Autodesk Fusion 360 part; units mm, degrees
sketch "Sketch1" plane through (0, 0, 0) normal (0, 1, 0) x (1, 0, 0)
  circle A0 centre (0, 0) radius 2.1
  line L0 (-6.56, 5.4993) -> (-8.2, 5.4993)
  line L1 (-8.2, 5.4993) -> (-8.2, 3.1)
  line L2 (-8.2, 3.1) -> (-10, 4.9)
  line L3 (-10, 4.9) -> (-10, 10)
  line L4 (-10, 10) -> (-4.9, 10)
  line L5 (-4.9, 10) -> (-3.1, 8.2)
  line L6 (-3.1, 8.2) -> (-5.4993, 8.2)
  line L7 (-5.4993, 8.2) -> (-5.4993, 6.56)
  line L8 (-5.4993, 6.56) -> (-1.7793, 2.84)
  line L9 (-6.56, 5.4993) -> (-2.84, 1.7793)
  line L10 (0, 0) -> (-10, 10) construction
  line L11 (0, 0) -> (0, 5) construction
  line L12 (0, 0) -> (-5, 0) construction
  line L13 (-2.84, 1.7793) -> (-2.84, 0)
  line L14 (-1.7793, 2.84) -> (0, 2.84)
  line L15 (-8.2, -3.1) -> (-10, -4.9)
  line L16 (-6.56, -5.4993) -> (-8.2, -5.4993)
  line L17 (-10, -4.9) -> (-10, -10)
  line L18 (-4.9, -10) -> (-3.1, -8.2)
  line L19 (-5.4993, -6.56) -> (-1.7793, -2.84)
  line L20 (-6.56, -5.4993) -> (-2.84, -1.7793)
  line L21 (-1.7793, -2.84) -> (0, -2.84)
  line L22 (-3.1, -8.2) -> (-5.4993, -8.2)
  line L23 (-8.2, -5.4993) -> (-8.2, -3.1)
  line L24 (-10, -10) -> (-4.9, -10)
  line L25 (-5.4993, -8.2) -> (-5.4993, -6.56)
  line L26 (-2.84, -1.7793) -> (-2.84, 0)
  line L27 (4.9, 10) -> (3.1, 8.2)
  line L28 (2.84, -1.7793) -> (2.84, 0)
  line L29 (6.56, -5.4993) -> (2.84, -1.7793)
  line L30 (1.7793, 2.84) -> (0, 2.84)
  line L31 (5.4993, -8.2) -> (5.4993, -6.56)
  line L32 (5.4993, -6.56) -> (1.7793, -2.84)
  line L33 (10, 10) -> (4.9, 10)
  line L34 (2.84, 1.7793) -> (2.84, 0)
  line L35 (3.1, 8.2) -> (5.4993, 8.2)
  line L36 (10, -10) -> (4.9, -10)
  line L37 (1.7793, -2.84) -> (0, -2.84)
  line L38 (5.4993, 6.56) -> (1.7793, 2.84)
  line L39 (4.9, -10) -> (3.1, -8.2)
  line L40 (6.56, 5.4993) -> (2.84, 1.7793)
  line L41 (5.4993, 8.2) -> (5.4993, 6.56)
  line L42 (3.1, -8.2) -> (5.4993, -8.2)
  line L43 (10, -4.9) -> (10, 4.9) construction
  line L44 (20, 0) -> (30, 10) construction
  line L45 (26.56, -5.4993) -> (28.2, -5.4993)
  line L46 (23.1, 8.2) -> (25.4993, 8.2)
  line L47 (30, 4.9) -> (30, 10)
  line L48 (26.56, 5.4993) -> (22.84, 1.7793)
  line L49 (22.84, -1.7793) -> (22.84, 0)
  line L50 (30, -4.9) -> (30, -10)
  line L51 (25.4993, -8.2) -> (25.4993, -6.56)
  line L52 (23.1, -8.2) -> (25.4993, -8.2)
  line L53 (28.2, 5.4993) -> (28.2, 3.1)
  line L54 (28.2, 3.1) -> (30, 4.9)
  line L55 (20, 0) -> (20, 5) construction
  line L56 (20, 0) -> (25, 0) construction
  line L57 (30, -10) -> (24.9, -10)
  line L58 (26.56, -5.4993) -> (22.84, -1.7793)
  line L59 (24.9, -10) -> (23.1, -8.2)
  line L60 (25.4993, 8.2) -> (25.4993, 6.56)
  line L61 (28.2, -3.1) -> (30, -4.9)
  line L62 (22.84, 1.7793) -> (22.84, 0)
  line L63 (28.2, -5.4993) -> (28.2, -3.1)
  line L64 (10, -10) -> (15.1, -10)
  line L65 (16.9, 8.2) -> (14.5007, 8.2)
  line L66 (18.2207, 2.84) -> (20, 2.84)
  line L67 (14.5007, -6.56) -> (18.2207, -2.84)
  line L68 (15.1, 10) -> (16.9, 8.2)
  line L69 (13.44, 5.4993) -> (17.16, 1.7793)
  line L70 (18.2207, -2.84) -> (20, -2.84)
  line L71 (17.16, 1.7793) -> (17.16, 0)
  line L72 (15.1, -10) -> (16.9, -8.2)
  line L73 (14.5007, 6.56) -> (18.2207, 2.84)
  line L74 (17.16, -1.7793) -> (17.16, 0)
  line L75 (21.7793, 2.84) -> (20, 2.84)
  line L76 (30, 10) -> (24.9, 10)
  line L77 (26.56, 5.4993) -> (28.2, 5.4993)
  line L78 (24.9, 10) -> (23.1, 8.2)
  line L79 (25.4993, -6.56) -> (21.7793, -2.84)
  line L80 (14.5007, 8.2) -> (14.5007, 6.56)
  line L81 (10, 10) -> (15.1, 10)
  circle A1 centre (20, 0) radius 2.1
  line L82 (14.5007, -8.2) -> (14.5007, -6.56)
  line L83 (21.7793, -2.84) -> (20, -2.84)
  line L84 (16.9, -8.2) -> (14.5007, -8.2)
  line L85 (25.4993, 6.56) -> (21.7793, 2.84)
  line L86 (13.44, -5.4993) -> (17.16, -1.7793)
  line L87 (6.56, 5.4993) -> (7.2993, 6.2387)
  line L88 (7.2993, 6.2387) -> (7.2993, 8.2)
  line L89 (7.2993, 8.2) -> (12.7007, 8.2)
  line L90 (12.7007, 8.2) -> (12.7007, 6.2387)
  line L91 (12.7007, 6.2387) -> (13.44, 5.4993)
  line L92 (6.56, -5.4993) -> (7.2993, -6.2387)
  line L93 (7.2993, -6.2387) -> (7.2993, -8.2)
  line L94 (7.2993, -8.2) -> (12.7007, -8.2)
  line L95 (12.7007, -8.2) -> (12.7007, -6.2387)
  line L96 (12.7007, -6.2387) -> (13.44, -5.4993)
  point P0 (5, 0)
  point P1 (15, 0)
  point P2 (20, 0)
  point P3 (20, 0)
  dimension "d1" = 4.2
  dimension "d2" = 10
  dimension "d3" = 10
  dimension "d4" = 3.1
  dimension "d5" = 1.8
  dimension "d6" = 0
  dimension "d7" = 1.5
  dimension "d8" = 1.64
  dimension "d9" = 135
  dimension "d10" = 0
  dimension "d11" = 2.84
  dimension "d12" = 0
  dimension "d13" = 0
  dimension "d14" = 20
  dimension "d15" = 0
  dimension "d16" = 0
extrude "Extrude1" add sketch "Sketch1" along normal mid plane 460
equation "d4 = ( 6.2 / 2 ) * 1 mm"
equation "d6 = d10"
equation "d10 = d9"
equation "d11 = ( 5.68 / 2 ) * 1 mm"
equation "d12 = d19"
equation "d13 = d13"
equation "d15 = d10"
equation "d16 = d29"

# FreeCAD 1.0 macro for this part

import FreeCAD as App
import Part
import Sketcher

V = App.Vector


def add_polygon(sketch, points):
    """Adds a closed chain of lines whose ends are joined by coincident constraints."""
    first, n = sketch.GeometryCount, len(points)
    for a, b in zip(points, points[1:] + points[:1]):
        sketch.addGeometry(Part.LineSegment(App.Vector(*a, 0), App.Vector(*b, 0)), False)
    for i in range(n):
        sketch.addConstraint(Sketcher.Constraint("Coincident", first + i, 2, first + (i + 1) % n, 1))

doc = App.newDocument("Part")
body = doc.addObject("PartDesign::Body", "Body")

# Sketch on XZ plane
sketch1 = body.newObject("Sketcher::SketchObject", "Sketch")
sketch1.AttachmentSupport = (doc.getObject("XZ_Plane"), [""])
sketch1.MapMode = "FlatFace"
add_polygon(sketch1, [(-8.2, -5.5), (-6.6, -5.5), (-2.8, -1.8), (-2.8, 1.8), (-6.6, 5.5), (-8.2, 5.5), (-8.2, 3.1), (-10, 4.9), (-10, 10), (-4.9, 10), (-3.1, 8.2), (-5.5, 8.2), (-5.5, 6.6), (-1.8, 2.8), (1.8, 2.8), (5.5, 6.6), (5.5, 8.2), (3.1, 8.2), (4.9, 10), (15.1, 10), (16.9, 8.2), (14.5, 8.2), (14.5, 6.6), (18.2, 2.8), (21.8, 2.8), (25.5, 6.6), (25.5, 8.2), (23.1, 8.2), (24.9, 10), (30, 10), (30, 4.9), (28.2, 3.1), (28.2, 5.5), (26.6, 5.5), (22.8, 1.8), (22.8, -1.8), (26.6, -5.5), (28.2, -5.5), (28.2, -3.1), (30, -4.9), (30, -10), (24.9, -10), (23.1, -8.2), (25.5, -8.2), (25.5, -6.6), (21.8, -2.8), (18.2, -2.8), (14.5, -6.6), (14.5, -8.2), (16.9, -8.2), (15.1, -10), (4.9, -10), (3.1, -8.2), (5.5, -8.2), (5.5, -6.6), (1.8, -2.8), (-1.8, -2.8), (-5.5, -6.6), (-5.5, -8.2), (-3.1, -8.2), (-4.9, -10), (-10, -10), (-10, -4.9), (-8.2, -3.1)])  # lines 0-63
sketch1.addGeometry(Part.Circle(V(0, 0, 0), V(0, 0, 1), 2.1), False)  # 64
add_polygon(sketch1, [(6.6, 5.5), (2.8, 1.8), (2.8, -1.8), (6.6, -5.5), (7.3, -6.2), (7.3, -8.2), (12.7, -8.2), (12.7, -6.2), (13.4, -5.5), (17.2, -1.8), (17.2, 1.8), (13.4, 5.5), (12.7, 6.2), (12.7, 8.2), (7.3, 8.2), (7.3, 6.2)])  # lines 65-80
sketch1.addGeometry(Part.Circle(V(20, 0, 0), V(0, 0, 1), 2.1), False)  # 81
sketch1.addConstraint([
    Sketcher.Constraint("Horizontal", 0),
    Sketcher.Constraint("Vertical", 2),
    Sketcher.Constraint("Horizontal", 4),
    Sketcher.Constraint("Vertical", 5),
    Sketcher.Constraint("Vertical", 7),
    Sketcher.Constraint("Horizontal", 8),
    Sketcher.Constraint("Horizontal", 10),
    Sketcher.Constraint("Vertical", 11),
    Sketcher.Constraint("Horizontal", 13),
    Sketcher.Constraint("Vertical", 15),
    Sketcher.Constraint("Horizontal", 16),
    Sketcher.Constraint("Horizontal", 18),
    Sketcher.Constraint("Horizontal", 20),
    Sketcher.Constraint("Vertical", 21),
    Sketcher.Constraint("Horizontal", 23),
    Sketcher.Constraint("Vertical", 25),
    Sketcher.Constraint("Horizontal", 26),
    Sketcher.Constraint("Horizontal", 28),
    Sketcher.Constraint("Vertical", 29),
    Sketcher.Constraint("Vertical", 31),
    Sketcher.Constraint("Horizontal", 32),
    Sketcher.Constraint("Vertical", 34),
    Sketcher.Constraint("Horizontal", 36),
    Sketcher.Constraint("Vertical", 37),
    Sketcher.Constraint("Vertical", 39),
    Sketcher.Constraint("Horizontal", 40),
    Sketcher.Constraint("Horizontal", 42),
    Sketcher.Constraint("Vertical", 43),
    Sketcher.Constraint("Horizontal", 45),
    Sketcher.Constraint("Vertical", 47),
    Sketcher.Constraint("Horizontal", 48),
    Sketcher.Constraint("Horizontal", 50),
    Sketcher.Constraint("Horizontal", 52),
    Sketcher.Constraint("Vertical", 53),
    Sketcher.Constraint("Horizontal", 55),
    Sketcher.Constraint("Vertical", 57),
    Sketcher.Constraint("Horizontal", 58),
    Sketcher.Constraint("Horizontal", 60),
    Sketcher.Constraint("Vertical", 61),
    Sketcher.Constraint("Vertical", 63),
    Sketcher.Constraint("Vertical", 66),
    Sketcher.Constraint("Vertical", 69),
    Sketcher.Constraint("Horizontal", 70),
    Sketcher.Constraint("Vertical", 71),
    Sketcher.Constraint("Vertical", 74),
    Sketcher.Constraint("Vertical", 77),
    Sketcher.Constraint("Horizontal", 78),
    Sketcher.Constraint("Vertical", 79),
    Sketcher.Constraint("Coincident", 64, 3, -1, 1),
    Sketcher.Constraint("Equal", 64, 81),
    Sketcher.Constraint("Symmetric", 8, 2, 50, 2, -1, 1),
    Sketcher.Constraint("Symmetric", 9, 2, 51, 2, -1, 1),
    Sketcher.Constraint("Symmetric", 11, 2, 53, 2, -1, 1),
    Sketcher.Constraint("Symmetric", 12, 2, 54, 2, -1, 1),
    Sketcher.Constraint("Symmetric", 14, 2, 56, 2, -1, 1),
    Sketcher.Constraint("Symmetric", 16, 2, 58, 2, -1, 1),
    Sketcher.Constraint("Symmetric", 17, 2, 59, 2, -1, 1),
    Sketcher.Constraint("Symmetric", 1, 2, 65, 2, -1, 1),
    Sketcher.Constraint("Symmetric", 3, 2, 67, 2, -1, 1),
    Sketcher.Constraint("Symmetric", 0, 2, 80, 2, -1, 1),
    Sketcher.Constraint("Symmetric", 11, 2, 14, 2, -2),
    Sketcher.Constraint("Symmetric", 9, 2, 16, 2, -2),
    Sketcher.Constraint("Symmetric", 8, 2, 17, 2, -2),
    Sketcher.Constraint("Symmetric", 0, 2, 67, 2, -2),
    Sketcher.Constraint("Symmetric", 32, 2, 35, 2, -1),
    Sketcher.Constraint("Symmetric", 30, 2, 37, 2, -1),
    Sketcher.Constraint("Symmetric", 29, 2, 38, 2, -1),
    Sketcher.Constraint("Symmetric", 27, 2, 40, 2, -1),
    Sketcher.Constraint("Symmetric", 26, 2, 41, 2, -1),
    Sketcher.Constraint("Symmetric", 24, 2, 43, 2, -1),
    Sketcher.Constraint("Symmetric", 23, 2, 44, 2, -1),
    Sketcher.Constraint("Symmetric", 21, 2, 46, 2, -1),
    Sketcher.Constraint("Symmetric", 19, 2, 48, 2, -1),
    Sketcher.Constraint("Symmetric", 6, 2, 61, 2, -1),
    Sketcher.Constraint("Symmetric", 5, 2, 62, 2, -1),
    Sketcher.Constraint("Symmetric", 72, 2, 75, 2, -1),
    Sketcher.Constraint("Symmetric", 71, 2, 76, 2, -1),
    Sketcher.Constraint("Symmetric", 69, 2, 78, 2, -1),
    Sketcher.Constraint("PointOnObject", 81, 3, -1),
    Sketcher.Constraint("Perpendicular", 1, 3),
    Sketcher.Constraint("Parallel", 3, 6),
    Sketcher.Constraint("Parallel", 6, 9),
    Sketcher.Constraint("Parallel", 9, 12),
    Sketcher.Constraint("Perpendicular", 12, 14),
    Sketcher.Constraint("Parallel", 14, 17),
    Sketcher.Constraint("Perpendicular", 17, 19),
    Sketcher.Constraint("Parallel", 19, 22),
    Sketcher.Constraint("Perpendicular", 22, 24),
    Sketcher.Constraint("Parallel", 24, 27),
    Sketcher.Constraint("Parallel", 27, 30),
    Sketcher.Constraint("Parallel", 30, 33),
    Sketcher.Constraint("Perpendicular", 33, 35),
    Sketcher.Constraint("Perpendicular", 44, 46),
    Sketcher.Constraint("Parallel", 46, 49),
    Sketcher.Constraint("Perpendicular", 54, 56),
    Sketcher.Constraint("Perpendicular", 65, 67),
    Sketcher.Constraint("Parallel", 67, 68),
    Sketcher.Constraint("Perpendicular", 68, 72),
    Sketcher.Constraint("Parallel", 72, 73),
    Sketcher.Constraint("Perpendicular", 73, 75),
    Sketcher.Constraint("Perpendicular", 76, 80),
    Sketcher.Constraint("Horizontal", 16, 2, 19, 2),
    Sketcher.Constraint("Horizontal", 14, 2, 21, 2),
    Sketcher.Constraint("Horizontal", 13, 2, 22, 2),
    Sketcher.Constraint("Horizontal", 21, 2, 24, 2),
    Sketcher.Constraint("Horizontal", 20, 2, 25, 2),
    Sketcher.Constraint("Horizontal", 18, 2, 27, 2),
    Sketcher.Constraint("Horizontal", 6, 2, 29, 2),
    Sketcher.Constraint("Horizontal", 5, 2, 30, 2),
    Sketcher.Constraint("Horizontal", 4, 2, 31, 2),
    Sketcher.Constraint("Horizontal", 2, 2, 33, 2),
    Sketcher.Constraint("Horizontal", 58, 2, 69, 2),
    Sketcher.Constraint("Horizontal", 68, 2, 71, 2),
    Sketcher.Constraint("Horizontal", 67, 2, 72, 2),
    Sketcher.Constraint("Horizontal", 66, 2, 73, 2),
    Sketcher.Constraint("Equal", 16, 20),
    Sketcher.Constraint("Equal", 13, 23),
    Sketcher.Constraint("Equal", 20, 26),
    Sketcher.Constraint("Equal", 8, 28),
    Sketcher.Constraint("Equal", 4, 32),
    Sketcher.Constraint("Equal", 55, 2),
    Sketcher.Constraint("Equal", 58, 5),
    Sketcher.Constraint("Equal", 60, 7),
    Sketcher.Constraint("Equal", 36, 11),
    Sketcher.Constraint("Equal", 6, 9),
    Sketcher.Constraint("Equal", 3, 12),
    Sketcher.Constraint("Diameter", 64, 4.2),
    Sketcher.Constraint("DistanceX", -1, 1, 81, 3, 20.0),
    Sketcher.Constraint("DistanceX", 6, 2, -1, 1, 10.0),
    Sketcher.Constraint("DistanceX", 0, 1, 0, 2, 1.64),
    Sketcher.Constraint("DistanceY", -1, 1, 5, 2, 3.1),
    Sketcher.Constraint("DistanceX", 1, 2, -1, 1, 2.84),
    Sketcher.Constraint("DistanceX", 8, 1, 8, 2, 5.1),
    Sketcher.Constraint("DistanceX", 18, 1, 18, 2, 10.2),
    Sketcher.Constraint("DistanceX", -1, 1, 72, 2, 13.44),
    Sketcher.Constraint("DistanceX", 10, 2, 10, 1, 2.3993),
    Sketcher.Constraint("DistanceX", 70, 1, 70, 2, 5.4014),
])
pad1 = body.newObject("PartDesign::Pad", "Pad")
pad1.Profile = sketch1
pad1.Length = 460
pad1.Midplane = True

doc.recompute()
